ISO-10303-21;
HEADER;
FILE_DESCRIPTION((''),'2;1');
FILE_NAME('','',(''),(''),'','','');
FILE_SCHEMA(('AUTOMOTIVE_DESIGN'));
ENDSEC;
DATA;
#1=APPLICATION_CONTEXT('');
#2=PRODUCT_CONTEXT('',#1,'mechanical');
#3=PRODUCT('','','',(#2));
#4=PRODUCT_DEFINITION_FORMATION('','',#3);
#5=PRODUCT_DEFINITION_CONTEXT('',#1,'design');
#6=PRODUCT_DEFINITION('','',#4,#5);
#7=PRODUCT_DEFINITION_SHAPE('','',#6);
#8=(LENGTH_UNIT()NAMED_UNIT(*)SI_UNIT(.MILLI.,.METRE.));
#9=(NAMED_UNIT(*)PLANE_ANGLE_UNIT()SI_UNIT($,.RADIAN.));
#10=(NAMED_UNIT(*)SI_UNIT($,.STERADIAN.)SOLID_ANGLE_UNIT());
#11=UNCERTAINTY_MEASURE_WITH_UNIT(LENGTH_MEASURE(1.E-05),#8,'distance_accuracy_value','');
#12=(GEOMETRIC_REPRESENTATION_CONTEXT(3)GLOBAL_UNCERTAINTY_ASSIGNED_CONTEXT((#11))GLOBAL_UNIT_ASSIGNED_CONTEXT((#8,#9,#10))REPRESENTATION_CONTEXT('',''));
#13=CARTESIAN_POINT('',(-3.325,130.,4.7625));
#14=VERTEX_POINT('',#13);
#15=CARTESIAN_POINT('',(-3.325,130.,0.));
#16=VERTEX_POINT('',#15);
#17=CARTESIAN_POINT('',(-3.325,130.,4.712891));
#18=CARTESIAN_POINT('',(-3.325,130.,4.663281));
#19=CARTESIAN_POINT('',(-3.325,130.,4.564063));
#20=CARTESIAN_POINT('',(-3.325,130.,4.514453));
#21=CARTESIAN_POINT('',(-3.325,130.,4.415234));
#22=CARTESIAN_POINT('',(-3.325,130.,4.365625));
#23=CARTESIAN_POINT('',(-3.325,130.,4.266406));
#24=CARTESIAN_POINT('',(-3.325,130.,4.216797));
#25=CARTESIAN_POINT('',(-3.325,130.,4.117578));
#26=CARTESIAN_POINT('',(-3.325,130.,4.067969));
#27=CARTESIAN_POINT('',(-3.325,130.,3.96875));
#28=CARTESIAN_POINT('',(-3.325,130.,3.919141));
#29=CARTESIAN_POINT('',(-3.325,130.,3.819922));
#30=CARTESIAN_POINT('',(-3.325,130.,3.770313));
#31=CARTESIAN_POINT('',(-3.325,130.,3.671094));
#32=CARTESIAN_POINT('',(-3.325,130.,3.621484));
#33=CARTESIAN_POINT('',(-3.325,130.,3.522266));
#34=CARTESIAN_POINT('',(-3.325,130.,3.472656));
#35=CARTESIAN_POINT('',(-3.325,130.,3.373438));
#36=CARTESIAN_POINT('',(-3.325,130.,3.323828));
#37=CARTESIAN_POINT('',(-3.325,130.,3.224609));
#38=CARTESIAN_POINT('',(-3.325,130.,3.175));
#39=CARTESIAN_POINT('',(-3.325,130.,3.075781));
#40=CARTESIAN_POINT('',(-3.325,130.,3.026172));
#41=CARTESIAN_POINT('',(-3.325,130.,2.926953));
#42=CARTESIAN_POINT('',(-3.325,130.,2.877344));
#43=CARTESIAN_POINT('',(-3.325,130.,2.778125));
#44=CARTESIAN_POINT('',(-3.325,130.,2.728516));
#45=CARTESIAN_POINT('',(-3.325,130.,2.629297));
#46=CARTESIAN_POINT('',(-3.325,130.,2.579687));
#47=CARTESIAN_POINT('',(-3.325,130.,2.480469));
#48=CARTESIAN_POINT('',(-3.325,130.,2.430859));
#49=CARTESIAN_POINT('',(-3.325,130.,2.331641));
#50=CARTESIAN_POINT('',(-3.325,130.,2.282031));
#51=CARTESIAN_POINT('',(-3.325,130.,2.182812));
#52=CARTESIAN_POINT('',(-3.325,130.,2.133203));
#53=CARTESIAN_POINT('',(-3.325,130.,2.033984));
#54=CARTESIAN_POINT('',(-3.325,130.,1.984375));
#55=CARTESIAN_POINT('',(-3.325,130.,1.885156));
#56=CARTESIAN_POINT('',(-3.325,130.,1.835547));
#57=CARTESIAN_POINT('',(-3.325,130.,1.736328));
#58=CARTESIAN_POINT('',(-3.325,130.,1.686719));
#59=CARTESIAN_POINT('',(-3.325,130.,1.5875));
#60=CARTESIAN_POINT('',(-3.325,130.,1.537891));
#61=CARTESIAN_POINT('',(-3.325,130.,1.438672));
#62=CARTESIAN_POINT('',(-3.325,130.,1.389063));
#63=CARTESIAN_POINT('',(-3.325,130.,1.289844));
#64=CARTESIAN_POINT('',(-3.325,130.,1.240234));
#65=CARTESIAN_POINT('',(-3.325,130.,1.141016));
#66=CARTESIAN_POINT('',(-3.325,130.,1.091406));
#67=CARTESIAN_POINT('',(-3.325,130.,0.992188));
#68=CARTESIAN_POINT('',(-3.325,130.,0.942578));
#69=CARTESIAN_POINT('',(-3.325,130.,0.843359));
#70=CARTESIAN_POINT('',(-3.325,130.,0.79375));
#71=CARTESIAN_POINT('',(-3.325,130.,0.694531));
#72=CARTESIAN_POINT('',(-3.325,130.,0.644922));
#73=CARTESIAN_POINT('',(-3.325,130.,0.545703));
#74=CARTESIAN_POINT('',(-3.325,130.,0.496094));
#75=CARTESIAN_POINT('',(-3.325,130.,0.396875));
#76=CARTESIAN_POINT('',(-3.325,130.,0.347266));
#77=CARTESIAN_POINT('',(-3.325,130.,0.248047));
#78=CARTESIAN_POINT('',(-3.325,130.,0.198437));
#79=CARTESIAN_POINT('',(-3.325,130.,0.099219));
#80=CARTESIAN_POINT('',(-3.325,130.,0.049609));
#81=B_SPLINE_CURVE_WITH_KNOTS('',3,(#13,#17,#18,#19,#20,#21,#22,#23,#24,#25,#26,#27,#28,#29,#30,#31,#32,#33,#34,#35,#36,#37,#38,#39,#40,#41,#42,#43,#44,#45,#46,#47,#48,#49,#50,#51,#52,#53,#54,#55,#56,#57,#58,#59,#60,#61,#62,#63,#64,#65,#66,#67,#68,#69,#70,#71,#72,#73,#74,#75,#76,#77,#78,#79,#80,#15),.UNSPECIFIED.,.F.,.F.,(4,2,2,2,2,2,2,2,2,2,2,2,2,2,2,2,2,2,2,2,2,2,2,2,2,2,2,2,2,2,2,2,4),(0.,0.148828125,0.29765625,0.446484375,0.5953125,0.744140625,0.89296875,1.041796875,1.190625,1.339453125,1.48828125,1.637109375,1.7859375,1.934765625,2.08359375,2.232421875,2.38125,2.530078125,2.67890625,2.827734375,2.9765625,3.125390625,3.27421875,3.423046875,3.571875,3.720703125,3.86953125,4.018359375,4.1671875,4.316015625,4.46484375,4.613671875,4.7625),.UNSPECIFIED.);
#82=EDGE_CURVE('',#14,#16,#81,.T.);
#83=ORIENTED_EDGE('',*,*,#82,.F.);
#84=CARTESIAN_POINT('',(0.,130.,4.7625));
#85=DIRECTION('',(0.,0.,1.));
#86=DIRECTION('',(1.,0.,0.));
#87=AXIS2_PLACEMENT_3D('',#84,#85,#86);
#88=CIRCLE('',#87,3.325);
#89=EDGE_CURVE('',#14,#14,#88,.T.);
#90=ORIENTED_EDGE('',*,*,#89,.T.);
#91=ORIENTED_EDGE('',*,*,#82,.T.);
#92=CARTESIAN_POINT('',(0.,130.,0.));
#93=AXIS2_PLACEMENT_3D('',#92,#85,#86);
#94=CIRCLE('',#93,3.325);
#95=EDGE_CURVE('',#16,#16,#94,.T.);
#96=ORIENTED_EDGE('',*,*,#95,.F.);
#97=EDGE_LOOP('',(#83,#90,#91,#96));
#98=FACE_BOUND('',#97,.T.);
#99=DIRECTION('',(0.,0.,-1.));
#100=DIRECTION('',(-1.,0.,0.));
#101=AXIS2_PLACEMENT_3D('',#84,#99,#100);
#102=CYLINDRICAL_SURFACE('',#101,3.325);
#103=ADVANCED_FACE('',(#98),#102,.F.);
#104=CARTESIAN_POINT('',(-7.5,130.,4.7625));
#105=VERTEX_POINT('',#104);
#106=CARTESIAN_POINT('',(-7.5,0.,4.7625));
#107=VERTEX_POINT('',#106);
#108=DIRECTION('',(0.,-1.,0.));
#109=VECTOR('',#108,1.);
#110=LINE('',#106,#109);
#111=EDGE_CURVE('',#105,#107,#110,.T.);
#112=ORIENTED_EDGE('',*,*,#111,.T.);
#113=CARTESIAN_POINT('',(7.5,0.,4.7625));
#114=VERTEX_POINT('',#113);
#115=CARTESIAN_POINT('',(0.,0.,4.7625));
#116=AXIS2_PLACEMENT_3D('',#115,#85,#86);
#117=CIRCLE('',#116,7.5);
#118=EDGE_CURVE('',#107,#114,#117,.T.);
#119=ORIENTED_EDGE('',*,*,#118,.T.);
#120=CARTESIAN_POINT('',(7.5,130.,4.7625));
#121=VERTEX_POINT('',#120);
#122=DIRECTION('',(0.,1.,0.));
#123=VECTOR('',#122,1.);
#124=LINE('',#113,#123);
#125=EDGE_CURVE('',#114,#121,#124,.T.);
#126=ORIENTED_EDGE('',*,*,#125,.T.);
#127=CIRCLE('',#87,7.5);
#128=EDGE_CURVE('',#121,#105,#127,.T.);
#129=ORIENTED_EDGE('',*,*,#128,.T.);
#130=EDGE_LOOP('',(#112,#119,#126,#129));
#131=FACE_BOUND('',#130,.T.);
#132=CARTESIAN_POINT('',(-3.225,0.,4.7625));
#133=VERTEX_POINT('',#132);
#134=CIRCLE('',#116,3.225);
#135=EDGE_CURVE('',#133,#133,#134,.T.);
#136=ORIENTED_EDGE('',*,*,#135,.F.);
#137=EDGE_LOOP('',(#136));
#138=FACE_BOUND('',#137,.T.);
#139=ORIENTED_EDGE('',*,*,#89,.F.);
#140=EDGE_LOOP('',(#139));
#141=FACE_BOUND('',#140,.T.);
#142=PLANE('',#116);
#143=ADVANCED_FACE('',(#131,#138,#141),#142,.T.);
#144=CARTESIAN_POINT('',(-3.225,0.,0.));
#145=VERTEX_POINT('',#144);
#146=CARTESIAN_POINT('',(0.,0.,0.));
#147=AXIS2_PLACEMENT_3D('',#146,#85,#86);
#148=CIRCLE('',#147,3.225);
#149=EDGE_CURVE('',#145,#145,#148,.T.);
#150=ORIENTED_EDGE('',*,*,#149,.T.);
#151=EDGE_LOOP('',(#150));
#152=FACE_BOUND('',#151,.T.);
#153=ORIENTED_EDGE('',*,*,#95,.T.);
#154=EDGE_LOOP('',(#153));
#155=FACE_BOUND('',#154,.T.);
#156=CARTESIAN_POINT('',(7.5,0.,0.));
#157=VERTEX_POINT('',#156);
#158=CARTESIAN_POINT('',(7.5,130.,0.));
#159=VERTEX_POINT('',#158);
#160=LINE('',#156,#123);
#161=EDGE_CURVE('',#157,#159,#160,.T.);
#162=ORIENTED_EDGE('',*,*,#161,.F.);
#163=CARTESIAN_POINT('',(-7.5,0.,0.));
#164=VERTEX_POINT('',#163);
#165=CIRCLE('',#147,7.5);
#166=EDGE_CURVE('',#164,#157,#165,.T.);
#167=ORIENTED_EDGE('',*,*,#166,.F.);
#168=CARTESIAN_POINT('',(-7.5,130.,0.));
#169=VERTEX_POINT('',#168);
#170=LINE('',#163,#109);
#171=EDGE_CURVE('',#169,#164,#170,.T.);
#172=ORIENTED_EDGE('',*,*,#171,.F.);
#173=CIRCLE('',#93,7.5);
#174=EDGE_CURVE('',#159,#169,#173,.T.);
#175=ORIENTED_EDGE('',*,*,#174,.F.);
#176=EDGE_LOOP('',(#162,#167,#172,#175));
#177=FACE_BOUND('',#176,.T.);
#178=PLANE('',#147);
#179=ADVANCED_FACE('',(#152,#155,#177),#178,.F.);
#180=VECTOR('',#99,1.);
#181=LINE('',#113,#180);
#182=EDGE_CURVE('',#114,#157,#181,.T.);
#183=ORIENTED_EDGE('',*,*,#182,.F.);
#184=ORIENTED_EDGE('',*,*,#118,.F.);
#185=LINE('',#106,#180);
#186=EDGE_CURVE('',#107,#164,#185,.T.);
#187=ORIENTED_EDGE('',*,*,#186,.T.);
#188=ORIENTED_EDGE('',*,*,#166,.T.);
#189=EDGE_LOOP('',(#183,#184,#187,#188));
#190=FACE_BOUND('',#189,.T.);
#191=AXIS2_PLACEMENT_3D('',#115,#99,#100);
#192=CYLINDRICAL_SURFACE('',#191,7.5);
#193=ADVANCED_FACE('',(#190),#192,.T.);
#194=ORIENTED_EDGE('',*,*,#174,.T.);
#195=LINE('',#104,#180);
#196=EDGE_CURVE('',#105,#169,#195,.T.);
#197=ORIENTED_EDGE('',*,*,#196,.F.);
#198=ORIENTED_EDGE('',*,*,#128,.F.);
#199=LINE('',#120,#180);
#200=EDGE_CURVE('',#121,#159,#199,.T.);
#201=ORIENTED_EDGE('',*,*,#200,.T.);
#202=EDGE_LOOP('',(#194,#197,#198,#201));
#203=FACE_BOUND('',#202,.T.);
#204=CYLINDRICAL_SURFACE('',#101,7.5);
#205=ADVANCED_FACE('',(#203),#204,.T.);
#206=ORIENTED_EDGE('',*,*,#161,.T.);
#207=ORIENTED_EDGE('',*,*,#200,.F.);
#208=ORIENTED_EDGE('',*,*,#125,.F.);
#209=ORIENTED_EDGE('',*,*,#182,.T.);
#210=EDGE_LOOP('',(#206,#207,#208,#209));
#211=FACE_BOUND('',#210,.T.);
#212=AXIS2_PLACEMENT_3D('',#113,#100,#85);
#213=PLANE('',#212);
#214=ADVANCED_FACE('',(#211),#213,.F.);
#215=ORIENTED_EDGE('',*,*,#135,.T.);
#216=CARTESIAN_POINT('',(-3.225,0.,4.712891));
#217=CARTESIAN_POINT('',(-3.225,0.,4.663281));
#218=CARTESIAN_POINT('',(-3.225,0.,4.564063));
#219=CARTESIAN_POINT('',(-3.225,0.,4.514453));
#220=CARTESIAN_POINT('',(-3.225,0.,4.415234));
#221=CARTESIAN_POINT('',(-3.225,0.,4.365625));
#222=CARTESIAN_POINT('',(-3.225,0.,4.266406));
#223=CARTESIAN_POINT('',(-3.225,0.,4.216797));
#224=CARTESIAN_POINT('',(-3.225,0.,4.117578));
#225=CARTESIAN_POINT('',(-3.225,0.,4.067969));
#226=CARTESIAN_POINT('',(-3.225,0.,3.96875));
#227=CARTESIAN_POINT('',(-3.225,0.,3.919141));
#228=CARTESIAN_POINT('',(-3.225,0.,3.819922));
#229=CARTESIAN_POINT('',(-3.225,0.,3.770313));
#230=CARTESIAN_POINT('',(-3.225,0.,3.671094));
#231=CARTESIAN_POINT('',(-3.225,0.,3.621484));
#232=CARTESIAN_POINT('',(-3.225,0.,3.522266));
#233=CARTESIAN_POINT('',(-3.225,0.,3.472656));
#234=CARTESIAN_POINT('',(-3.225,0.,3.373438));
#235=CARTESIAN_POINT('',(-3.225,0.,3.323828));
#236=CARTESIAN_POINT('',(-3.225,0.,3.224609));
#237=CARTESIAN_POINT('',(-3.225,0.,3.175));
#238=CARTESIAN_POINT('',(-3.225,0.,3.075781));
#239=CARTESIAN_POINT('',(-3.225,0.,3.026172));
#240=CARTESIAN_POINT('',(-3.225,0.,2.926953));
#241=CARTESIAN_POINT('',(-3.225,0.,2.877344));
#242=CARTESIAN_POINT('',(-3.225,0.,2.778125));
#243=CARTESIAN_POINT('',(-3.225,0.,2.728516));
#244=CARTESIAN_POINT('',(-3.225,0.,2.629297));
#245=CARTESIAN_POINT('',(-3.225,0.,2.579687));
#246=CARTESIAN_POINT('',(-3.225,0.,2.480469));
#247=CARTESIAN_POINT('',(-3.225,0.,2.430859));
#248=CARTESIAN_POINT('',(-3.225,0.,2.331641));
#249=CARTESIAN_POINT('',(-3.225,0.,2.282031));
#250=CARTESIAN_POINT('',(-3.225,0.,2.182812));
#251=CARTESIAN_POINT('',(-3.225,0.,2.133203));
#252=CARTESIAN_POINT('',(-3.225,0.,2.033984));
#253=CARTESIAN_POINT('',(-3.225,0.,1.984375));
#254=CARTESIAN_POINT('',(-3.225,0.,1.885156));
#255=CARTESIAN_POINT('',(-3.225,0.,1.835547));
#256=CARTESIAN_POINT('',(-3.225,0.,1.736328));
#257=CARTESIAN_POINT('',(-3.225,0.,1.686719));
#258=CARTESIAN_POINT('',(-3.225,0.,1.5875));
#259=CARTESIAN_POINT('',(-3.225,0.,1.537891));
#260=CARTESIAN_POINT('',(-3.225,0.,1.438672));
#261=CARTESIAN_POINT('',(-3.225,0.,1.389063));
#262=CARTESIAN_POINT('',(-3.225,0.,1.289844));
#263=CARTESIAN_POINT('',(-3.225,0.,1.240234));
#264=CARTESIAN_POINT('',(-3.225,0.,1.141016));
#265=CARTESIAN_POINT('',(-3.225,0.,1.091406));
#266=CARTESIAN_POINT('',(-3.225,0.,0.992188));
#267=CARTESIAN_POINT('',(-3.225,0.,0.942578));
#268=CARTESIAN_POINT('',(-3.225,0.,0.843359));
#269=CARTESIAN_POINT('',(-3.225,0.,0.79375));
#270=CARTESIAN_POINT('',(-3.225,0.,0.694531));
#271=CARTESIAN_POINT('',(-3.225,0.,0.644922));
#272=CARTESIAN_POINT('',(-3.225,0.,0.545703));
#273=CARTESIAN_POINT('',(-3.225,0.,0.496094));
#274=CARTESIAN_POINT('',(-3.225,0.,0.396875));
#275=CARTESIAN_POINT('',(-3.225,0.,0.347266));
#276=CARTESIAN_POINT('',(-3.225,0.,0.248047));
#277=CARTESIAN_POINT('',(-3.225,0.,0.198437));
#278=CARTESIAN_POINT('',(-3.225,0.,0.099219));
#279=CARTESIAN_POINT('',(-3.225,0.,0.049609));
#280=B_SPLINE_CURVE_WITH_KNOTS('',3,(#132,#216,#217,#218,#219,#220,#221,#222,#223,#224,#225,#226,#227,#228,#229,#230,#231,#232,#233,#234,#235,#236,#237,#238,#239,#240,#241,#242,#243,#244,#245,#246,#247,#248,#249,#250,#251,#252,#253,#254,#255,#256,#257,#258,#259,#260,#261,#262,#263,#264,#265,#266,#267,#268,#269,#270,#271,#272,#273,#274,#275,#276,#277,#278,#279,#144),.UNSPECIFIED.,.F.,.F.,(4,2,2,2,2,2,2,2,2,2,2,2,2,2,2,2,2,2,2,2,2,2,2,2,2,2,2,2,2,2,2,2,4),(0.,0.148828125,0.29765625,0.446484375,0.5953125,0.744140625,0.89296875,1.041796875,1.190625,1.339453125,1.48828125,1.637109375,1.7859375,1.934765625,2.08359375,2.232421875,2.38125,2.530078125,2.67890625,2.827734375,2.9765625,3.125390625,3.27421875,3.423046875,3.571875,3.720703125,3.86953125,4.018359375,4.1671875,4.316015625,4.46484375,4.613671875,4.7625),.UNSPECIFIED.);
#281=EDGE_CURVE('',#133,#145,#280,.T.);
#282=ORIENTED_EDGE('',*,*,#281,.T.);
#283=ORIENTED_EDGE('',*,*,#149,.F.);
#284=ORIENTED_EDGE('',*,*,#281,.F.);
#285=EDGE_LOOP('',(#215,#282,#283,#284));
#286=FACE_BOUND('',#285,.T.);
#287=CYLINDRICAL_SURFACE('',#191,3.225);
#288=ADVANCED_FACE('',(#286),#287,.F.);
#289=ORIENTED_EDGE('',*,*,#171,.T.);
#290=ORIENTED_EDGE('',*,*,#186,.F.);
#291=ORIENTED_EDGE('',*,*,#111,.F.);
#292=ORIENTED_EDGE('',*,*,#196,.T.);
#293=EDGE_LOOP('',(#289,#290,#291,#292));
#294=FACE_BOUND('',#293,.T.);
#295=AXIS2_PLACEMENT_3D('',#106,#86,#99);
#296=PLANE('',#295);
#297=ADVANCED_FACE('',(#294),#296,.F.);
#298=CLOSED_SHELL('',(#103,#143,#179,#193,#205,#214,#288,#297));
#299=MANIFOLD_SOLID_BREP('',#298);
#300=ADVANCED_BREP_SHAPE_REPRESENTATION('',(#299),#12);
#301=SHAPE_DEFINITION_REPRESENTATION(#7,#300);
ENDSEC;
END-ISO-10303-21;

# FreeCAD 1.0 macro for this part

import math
import FreeCAD as App
import Part
import Sketcher
Q = App.Units.Quantity

doc = App.newDocument("Part")
params = doc.addObject("Spreadsheet::Sheet", "Params")
for row, (alias, value) in enumerate([
    ("sketch1_radius", "7.5 mm"),
    ("sketch1_diameter", "6.45 mm"),
    ("sketch1_diameter2", "6.65 mm"),
    ("sketch1_height", "130 mm"),
    ("pad1_length", "4.7625 mm"),
], start=1):
    params.set(f"A{row}", alias)
    params.set(f"B{row}", "=" + value)
    params.setAlias(f"B{row}", alias)

body = doc.addObject("PartDesign::Body", "Body")

# Sketch on XY plane
sketch1 = body.newObject("Sketcher::SketchObject", "Sketch")
sketch1.AttachmentSupport = (doc.getObject("XY_Plane"), [""])
sketch1.MapMode = "FlatFace"
sketch1.addGeometry([
    Part.LineSegment(App.Vector(-7.5, 130, 0), App.Vector(-7.5, 0, 0)),  # 0
    Part.ArcOfCircle(Part.Circle(App.Vector(0, 0, 0), App.Vector(0, 0, 1), 7.5), math.radians(180), math.radians(360)),  # 1
    Part.LineSegment(App.Vector(7.5, 0, 0), App.Vector(7.5, 130, 0)),  # 2
    Part.ArcOfCircle(Part.Circle(App.Vector(0, 130, 0), App.Vector(0, 0, 1), 7.5), math.radians(0), math.radians(180)),  # 3
    Part.Circle(App.Vector(0, 0, 0), App.Vector(0, 0, 1), 3.225),  # 4
    Part.Circle(App.Vector(0, 130, 0), App.Vector(0, 0, 1), 3.325),  # 5
], False)
sketch1.addConstraint([
    Sketcher.Constraint("Tangent", 0, 2, 1, 1),
    Sketcher.Constraint("Tangent", 1, 2, 2, 1),
    Sketcher.Constraint("Tangent", 2, 2, 3, 1),
    Sketcher.Constraint("Tangent", 3, 2, 0, 1),
    Sketcher.Constraint("Vertical", 0),
    Sketcher.Constraint("Vertical", 2),
    Sketcher.Constraint("Coincident", 1, 3, -1, 1),
    Sketcher.Constraint("Coincident", 4, 3, -1, 1),
    Sketcher.Constraint("Coincident", 5, 3, 3, 3),
    Sketcher.Constraint("Radius", 1, Q("7.5 mm")),
    Sketcher.Constraint("Diameter", 4, Q("6.45 mm")),
    Sketcher.Constraint("Diameter", 5, Q("6.65 mm")),
    Sketcher.Constraint("DistanceY", 0, 2, 0, 1, Q("130 mm")),
])
sketch1.setExpression("Constraints[9]", "Params.sketch1_radius")
sketch1.setExpression("Constraints[10]", "Params.sketch1_diameter")
sketch1.setExpression("Constraints[11]", "Params.sketch1_diameter2")
sketch1.setExpression("Constraints[12]", "Params.sketch1_height")
pad1 = body.newObject("PartDesign::Pad", "Pad")
pad1.Profile = sketch1
pad1.setExpression("Length", "Params.pad1_length")

doc.recompute()
